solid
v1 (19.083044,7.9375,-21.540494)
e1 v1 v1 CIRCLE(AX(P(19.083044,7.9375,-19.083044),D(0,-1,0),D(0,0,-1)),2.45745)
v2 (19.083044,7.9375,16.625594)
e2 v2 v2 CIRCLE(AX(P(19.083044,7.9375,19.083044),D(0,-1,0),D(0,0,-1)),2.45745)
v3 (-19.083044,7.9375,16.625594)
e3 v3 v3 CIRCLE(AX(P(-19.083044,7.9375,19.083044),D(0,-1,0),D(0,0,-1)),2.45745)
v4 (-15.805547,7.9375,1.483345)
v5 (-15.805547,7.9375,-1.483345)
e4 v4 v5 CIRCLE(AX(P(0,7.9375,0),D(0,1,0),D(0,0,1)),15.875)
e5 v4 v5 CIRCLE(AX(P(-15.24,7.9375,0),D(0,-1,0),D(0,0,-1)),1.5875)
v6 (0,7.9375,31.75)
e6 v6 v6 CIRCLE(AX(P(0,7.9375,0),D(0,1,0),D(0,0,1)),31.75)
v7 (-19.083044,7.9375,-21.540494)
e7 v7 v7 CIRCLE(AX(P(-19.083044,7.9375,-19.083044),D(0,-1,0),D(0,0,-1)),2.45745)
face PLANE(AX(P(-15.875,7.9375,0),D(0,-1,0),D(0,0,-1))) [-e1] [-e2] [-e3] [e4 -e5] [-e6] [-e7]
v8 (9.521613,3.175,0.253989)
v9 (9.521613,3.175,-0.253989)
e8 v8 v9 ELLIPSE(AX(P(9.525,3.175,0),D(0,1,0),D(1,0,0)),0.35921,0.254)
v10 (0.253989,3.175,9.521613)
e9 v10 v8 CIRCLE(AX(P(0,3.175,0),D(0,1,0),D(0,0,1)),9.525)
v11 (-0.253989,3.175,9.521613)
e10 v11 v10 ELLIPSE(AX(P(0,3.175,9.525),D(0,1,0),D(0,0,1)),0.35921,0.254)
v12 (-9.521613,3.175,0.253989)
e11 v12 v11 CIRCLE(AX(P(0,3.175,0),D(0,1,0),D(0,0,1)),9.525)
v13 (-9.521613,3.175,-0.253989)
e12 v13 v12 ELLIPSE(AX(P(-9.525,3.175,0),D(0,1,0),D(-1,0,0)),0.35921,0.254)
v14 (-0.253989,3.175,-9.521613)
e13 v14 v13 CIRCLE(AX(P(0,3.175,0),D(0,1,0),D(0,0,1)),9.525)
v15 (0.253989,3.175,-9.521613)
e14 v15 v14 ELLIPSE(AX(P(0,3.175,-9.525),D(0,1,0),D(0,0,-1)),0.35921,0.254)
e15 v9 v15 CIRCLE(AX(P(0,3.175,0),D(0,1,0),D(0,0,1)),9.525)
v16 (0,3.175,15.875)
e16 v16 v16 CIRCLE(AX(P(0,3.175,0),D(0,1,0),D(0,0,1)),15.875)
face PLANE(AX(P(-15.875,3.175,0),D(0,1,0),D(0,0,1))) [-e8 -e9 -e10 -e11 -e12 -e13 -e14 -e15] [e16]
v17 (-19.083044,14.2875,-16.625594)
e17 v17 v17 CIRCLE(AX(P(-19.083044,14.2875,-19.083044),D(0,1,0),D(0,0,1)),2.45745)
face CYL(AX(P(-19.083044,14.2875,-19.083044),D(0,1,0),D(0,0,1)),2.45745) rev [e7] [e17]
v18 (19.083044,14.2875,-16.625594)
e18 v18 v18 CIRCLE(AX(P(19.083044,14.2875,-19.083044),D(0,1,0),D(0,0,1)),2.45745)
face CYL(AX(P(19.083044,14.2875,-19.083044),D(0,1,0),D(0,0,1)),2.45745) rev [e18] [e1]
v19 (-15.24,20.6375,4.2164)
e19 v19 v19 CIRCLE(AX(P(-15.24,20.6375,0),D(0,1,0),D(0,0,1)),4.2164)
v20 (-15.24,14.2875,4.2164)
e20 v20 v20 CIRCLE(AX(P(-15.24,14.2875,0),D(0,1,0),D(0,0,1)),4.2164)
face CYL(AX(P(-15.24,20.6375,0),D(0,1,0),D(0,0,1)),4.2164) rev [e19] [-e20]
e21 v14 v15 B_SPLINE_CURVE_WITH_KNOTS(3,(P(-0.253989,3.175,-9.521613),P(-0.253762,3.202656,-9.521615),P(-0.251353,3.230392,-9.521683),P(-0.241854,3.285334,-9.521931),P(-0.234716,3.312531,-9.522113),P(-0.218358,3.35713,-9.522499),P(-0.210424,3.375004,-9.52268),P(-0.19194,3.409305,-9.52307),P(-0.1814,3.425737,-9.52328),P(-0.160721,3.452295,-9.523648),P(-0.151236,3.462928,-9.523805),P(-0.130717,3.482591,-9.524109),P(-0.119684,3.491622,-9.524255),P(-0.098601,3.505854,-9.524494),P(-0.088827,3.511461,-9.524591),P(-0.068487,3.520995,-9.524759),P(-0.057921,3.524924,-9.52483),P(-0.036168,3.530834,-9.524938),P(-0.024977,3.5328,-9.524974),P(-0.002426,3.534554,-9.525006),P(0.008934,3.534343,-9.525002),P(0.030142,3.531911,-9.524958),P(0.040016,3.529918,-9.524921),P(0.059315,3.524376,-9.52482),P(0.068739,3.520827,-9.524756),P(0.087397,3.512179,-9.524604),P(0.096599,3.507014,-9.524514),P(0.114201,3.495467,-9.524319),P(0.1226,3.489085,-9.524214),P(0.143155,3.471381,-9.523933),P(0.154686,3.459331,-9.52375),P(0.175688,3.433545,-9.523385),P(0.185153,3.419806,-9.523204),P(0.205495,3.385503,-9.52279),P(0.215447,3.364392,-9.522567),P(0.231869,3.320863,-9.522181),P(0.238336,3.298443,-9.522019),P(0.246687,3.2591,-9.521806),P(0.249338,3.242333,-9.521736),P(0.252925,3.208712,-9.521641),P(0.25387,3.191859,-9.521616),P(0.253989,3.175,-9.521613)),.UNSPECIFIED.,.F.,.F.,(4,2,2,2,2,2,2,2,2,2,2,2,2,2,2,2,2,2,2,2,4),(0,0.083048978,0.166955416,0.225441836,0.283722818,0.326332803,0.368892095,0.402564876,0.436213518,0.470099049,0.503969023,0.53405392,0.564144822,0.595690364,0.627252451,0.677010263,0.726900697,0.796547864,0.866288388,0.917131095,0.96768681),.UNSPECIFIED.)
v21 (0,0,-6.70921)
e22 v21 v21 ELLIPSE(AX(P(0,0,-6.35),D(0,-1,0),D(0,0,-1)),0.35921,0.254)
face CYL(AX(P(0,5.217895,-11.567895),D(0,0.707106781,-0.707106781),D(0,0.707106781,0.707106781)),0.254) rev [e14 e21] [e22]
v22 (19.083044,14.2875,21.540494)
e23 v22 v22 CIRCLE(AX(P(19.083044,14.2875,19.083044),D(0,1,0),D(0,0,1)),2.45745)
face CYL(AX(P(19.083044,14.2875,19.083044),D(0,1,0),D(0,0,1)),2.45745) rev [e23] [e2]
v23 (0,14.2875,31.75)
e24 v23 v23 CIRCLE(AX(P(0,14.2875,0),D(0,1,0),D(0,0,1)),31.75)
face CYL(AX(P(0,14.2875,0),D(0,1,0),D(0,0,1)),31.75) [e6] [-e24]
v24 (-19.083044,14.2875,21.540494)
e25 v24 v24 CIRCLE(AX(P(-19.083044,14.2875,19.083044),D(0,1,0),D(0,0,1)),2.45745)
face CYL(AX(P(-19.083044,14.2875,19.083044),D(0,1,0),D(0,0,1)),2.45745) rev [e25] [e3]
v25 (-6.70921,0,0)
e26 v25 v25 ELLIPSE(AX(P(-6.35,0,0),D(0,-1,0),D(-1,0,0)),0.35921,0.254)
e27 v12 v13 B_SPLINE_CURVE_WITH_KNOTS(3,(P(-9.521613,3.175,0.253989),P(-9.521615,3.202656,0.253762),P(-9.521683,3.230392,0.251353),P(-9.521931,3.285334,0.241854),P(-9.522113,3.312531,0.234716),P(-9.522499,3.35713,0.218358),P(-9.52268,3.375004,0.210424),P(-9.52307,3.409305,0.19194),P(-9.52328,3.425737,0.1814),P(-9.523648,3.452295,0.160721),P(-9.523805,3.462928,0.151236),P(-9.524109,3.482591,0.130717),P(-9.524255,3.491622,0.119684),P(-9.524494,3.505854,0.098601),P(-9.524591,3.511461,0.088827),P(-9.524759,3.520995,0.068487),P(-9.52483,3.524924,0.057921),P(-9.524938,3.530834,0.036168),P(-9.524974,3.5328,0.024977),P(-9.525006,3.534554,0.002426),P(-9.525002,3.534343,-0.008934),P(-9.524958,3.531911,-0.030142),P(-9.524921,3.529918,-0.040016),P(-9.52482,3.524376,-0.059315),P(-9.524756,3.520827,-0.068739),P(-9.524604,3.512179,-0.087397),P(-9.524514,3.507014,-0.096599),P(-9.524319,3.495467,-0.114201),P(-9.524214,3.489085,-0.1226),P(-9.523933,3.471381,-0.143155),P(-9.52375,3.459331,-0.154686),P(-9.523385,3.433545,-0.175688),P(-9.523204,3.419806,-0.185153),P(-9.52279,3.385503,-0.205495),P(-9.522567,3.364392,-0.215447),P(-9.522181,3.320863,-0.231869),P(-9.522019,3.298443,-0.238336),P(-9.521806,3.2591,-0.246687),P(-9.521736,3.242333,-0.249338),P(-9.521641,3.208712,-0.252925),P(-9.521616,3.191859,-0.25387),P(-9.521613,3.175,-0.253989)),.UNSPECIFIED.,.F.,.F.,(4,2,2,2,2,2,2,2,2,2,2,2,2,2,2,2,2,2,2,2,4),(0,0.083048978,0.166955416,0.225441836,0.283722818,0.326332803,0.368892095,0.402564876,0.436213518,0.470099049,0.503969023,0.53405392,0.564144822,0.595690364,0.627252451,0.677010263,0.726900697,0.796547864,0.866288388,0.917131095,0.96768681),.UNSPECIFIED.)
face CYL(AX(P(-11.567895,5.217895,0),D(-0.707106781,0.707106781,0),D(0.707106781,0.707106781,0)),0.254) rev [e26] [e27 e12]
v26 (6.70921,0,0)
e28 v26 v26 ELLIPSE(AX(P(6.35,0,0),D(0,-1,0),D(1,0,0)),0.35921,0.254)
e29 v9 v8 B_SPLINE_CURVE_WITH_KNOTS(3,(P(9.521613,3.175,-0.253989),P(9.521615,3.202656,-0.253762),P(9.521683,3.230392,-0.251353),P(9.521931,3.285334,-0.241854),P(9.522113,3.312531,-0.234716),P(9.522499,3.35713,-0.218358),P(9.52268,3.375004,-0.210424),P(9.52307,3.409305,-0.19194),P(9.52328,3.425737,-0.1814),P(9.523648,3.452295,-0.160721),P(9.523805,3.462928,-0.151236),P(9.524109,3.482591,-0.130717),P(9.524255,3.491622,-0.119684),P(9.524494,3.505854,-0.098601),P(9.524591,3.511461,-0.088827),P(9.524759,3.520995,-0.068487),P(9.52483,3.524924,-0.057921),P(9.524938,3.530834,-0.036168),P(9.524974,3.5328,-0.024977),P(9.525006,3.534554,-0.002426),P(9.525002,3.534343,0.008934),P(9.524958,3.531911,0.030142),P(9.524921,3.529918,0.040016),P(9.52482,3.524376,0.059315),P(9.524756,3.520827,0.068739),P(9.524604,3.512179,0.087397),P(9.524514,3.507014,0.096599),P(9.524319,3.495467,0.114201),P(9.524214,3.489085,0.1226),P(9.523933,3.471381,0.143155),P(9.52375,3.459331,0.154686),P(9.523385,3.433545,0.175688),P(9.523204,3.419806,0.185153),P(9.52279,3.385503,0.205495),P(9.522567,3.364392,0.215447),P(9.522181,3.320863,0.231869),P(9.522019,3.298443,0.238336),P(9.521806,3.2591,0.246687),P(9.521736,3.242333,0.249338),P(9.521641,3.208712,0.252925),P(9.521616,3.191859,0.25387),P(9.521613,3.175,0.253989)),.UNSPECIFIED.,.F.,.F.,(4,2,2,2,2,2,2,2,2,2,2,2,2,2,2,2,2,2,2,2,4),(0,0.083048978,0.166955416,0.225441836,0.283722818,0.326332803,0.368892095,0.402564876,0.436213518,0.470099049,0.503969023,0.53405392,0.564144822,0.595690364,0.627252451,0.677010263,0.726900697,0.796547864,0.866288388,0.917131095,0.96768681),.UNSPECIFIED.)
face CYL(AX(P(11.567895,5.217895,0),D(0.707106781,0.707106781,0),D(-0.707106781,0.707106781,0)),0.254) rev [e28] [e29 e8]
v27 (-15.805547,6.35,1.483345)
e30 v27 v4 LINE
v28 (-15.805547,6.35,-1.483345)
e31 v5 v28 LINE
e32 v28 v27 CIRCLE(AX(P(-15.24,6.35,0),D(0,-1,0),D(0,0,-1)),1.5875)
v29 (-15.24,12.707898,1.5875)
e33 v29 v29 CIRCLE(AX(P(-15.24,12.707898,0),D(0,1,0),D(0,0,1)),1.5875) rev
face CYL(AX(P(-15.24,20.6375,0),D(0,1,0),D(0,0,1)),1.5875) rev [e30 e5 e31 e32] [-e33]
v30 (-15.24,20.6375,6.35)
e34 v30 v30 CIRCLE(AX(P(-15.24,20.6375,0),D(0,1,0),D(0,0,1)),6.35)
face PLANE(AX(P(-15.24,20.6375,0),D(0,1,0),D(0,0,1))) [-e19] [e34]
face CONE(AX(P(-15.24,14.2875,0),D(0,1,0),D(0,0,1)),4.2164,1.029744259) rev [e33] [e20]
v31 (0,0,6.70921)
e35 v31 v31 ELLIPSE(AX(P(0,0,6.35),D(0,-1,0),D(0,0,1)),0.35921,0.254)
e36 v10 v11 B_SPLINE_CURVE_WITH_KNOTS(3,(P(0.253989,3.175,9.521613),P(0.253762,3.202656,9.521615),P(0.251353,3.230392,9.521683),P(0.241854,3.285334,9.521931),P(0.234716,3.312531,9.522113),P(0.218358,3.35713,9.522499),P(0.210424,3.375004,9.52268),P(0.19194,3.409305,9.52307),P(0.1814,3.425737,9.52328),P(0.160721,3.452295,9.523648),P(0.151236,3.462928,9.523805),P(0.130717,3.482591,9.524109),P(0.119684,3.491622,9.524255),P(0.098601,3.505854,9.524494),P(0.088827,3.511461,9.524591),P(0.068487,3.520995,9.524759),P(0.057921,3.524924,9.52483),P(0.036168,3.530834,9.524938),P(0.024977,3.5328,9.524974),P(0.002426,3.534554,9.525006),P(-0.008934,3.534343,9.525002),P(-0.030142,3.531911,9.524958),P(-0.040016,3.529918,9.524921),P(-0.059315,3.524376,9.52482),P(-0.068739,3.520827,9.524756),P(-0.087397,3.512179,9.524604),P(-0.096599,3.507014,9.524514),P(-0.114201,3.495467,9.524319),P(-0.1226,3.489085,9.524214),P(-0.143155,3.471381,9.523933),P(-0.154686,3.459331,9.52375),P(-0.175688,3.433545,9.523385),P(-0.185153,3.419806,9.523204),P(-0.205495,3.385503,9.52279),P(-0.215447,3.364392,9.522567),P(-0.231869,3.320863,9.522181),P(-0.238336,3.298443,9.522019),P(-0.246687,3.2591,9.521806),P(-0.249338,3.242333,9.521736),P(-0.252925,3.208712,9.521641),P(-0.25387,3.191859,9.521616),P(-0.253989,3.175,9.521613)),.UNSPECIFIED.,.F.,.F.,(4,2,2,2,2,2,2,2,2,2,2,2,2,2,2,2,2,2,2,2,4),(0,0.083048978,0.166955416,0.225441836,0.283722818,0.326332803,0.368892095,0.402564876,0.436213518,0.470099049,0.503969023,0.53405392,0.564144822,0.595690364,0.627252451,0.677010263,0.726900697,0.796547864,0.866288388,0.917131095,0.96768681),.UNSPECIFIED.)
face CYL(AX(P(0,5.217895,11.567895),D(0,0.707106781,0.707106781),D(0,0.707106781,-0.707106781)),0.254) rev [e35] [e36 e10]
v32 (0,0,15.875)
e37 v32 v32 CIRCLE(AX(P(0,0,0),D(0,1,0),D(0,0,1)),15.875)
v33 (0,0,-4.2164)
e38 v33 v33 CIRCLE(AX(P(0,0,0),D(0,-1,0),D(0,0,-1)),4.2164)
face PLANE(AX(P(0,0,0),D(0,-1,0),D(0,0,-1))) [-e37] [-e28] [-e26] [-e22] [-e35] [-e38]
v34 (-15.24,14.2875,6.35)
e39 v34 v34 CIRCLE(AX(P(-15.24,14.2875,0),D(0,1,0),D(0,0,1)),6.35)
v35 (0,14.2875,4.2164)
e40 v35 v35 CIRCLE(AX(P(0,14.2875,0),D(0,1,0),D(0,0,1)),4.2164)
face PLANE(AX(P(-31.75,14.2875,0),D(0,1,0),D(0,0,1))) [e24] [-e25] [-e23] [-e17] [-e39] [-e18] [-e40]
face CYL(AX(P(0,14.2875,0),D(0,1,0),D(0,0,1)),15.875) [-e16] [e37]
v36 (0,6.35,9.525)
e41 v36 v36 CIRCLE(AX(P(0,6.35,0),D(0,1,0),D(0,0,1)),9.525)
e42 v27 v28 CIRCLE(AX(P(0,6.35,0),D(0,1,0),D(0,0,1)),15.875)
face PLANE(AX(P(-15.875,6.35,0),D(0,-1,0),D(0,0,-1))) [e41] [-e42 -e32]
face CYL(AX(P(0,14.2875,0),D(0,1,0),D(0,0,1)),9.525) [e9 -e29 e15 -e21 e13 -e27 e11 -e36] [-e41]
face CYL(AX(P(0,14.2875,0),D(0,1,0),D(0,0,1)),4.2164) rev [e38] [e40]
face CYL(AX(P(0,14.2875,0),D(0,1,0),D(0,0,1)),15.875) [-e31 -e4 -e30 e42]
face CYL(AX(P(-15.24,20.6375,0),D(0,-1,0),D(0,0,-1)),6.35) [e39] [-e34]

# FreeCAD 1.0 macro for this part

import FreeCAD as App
import Part
import Sketcher
from FreeCAD import Vector
Q = App.Units.Quantity

doc = App.newDocument("Part")
body = doc.addObject("PartDesign::Body", "Body")

sketch1 = doc.addObject("Sketcher::SketchObject", "Sketch")
body.addObject(sketch1)
sketch1.AttachmentSupport = (doc.XY_Plane, [""])
sketch1.MapMode = "FlatFace"
sketch1.addGeometry([
    Part.LineSegment(Vector(-15.9, 0, 0), Vector(0, 0, 0)),
    Part.LineSegment(Vector(0, 0, 0), Vector(0, 14.3, 0)),
    Part.LineSegment(Vector(0, 14.3, 0), Vector(-31.8, 14.3, 0)),
    Part.LineSegment(Vector(-31.8, 14.3, 0), Vector(-31.8, 7.9, 0)),
    Part.LineSegment(Vector(-31.8, 7.9, 0), Vector(-15.9, 7.9, 0)),
    Part.LineSegment(Vector(-15.9, 7.9, 0), Vector(-15.9, 6.3, 0)),
    Part.LineSegment(Vector(-15.9, 6.3, 0), Vector(-9.5, 6.3, 0)),
    Part.LineSegment(Vector(-9.5, 6.3, 0), Vector(-9.5, 3.2, 0)),
    Part.LineSegment(Vector(-9.5, 3.2, 0), Vector(-15.9, 3.2, 0)),
    Part.LineSegment(Vector(-15.9, 3.2, 0), Vector(-15.9, 0, 0)),
], False)
sketch1.addConstraint([
    Sketcher.Constraint("Coincident", 0, 2, 1, 1),
    Sketcher.Constraint("Coincident", 1, 2, 2, 1),
    Sketcher.Constraint("Coincident", 2, 2, 3, 1),
    Sketcher.Constraint("Coincident", 3, 2, 4, 1),
    Sketcher.Constraint("Coincident", 4, 2, 5, 1),
    Sketcher.Constraint("Coincident", 5, 2, 6, 1),
    Sketcher.Constraint("Coincident", 6, 2, 7, 1),
    Sketcher.Constraint("Coincident", 7, 2, 8, 1),
    Sketcher.Constraint("Coincident", 8, 2, 9, 1),
    Sketcher.Constraint("Coincident", 9, 2, 0, 1),
    Sketcher.Constraint("Horizontal", 0),
    Sketcher.Constraint("Vertical", 1),
    Sketcher.Constraint("Horizontal", 2),
    Sketcher.Constraint("Vertical", 3),
    Sketcher.Constraint("Horizontal", 4),
    Sketcher.Constraint("Vertical", 5),
    Sketcher.Constraint("Horizontal", 6),
    Sketcher.Constraint("Vertical", 7),
    Sketcher.Constraint("Horizontal", 8),
    Sketcher.Constraint("Vertical", 9),
    Sketcher.Constraint("Coincident", 0, 2, -1, 1),
    Sketcher.Constraint("Vertical", 5, 2, 8, 2),
    Sketcher.Constraint("Equal", 0, 4),
    Sketcher.Constraint("Equal", 8, 3),
    Sketcher.Constraint("Equal", 7, 9),
    Sketcher.Constraint("DistanceX", 2, 2, 2, 1, Q("1.25 in")),
    Sketcher.Constraint("DistanceX", 6, 1, 6, 2, Q("0.25 in")),
    Sketcher.Constraint("DistanceY", 1, 1, 1, 2, Q("0.5625 in")),
    Sketcher.Constraint("DistanceY", 5, 2, 5, 1, Q("0.0625 in")),
])
revolution = doc.addObject("PartDesign::Revolution", "Revolution")
body.addObject(revolution)
revolution.Profile = sketch1
revolution.ReferenceAxis = (sketch1, ["V_Axis"])
revolution.Angle = 360

sketch2 = doc.addObject("Sketcher::SketchObject", "Sketch001")
body.addObject(sketch2)
sketch2.AttachmentSupport = (doc.XZ_Plane, [""])
sketch2.MapMode = "FlatFace"
sketch2.AttachmentOffset = App.Placement(Vector(0, 0, -0.5625 * 25.4), App.Rotation())
sketch2.addGeometry(Part.Circle(Vector(0, 0, 0), Vector(0, 0, 1), 4.2), False)
sketch2.addConstraint([
    Sketcher.Constraint("Coincident", 0, 3, -1, 1),
    Sketcher.Constraint("Diameter", 0, Q("0.332 in")),
])
doc.recompute()
hole = doc.addObject("PartDesign::Hole", "Hole")
body.addObject(hole)
hole.Profile = sketch2
hole.ThreadType = "None"
hole.Diameter = Q("0.332 in")
hole.DepthType = "Dimension"
hole.Depth = Q("1 in")
hole.DrillPoint = "Angled"
hole.DrillPointAngle = 118
hole.Reversed = True

sketch3 = doc.addObject("Sketcher::SketchObject", "Sketch002")
body.addObject(sketch3)
sketch3.AttachmentSupport = (doc.XY_Plane, [""])
sketch3.MapMode = "FlatFace"
sketch3.addGeometry([
    Part.LineSegment(Vector(11.39, 5.4, 0), Vector(11.57, 5.22, 0)),
    Part.LineSegment(Vector(11.57, 5.22, 0), Vector(4.9, -1.45, 0)),
    Part.LineSegment(Vector(4.9, -1.45, 0), Vector(4.72, -1.27, 0)),
    Part.LineSegment(Vector(4.72, -1.27, 0), Vector(11.39, 5.4, 0)),
], False)
sketch3.addGeometry(Part.LineSegment(Vector(11.57, 5.22, 0), Vector(4.9, -1.45, 0)), True)
sketch3.addConstraint([
    Sketcher.Constraint("Coincident", 0, 2, 1, 1),
    Sketcher.Constraint("Coincident", 1, 2, 2, 1),
    Sketcher.Constraint("Coincident", 2, 2, 3, 1),
    Sketcher.Constraint("Coincident", 3, 2, 0, 1),
    Sketcher.Constraint("Coincident", 4, 1, 0, 2),
    Sketcher.Constraint("Coincident", 4, 2, 1, 2),
    Sketcher.Constraint("Perpendicular", 0, 1),
    Sketcher.Constraint("Perpendicular", 1, 2),
    Sketcher.Constraint("Perpendicular", 2, 3),
    Sketcher.Constraint("Angle", 0, Q("-45 deg")),
    Sketcher.Constraint("Distance", 0, Q("0.01 in")),
    Sketcher.Constraint("DistanceY", 2, 2, -1, 1, Q("0.05 in")),
    Sketcher.Constraint("DistanceY", -1, 1, 3, 2, Q("0.2125 in")),
    Sketcher.Constraint("DistanceX", -1, 1, 2, 2, Q("4.72079 mm")),
])
groove = doc.addObject("PartDesign::Groove", "Groove")
body.addObject(groove)
groove.Profile = sketch3
groove.ReferenceAxis = (sketch3, ["Axis0"])
groove.Angle = 360
doc.recompute()

polarpattern = doc.addObject("PartDesign::PolarPattern", "PolarPattern")
body.addObject(polarpattern)
polarpattern.Originals = [groove]
polarpattern.Axis = (doc.Y_Axis, [""])
polarpattern.Angle = 360
polarpattern.Occurrences = 4
body.Tip = polarpattern

sketch4 = doc.addObject("Sketcher::SketchObject", "Sketch003")
body.addObject(sketch4)
sketch4.AttachmentSupport = (doc.XZ_Plane, [""])
sketch4.MapMode = "FlatFace"
sketch4.AttachmentOffset = App.Placement(Vector(0, 0, -0.5625 * 25.4), App.Rotation())
sketch4.addGeometry(Part.Circle(Vector(-15, 0, 0), Vector(0, 0, 1), 6), False)
sketch4.addConstraint([
    Sketcher.Constraint("PointOnObject", 0, 3, -1),
    Sketcher.Constraint("Diameter", 0, Q("0.5 in")),
    Sketcher.Constraint("DistanceX", 0, 3, -1, 1, Q("0.6 in")),
])
pad1 = doc.addObject("PartDesign::Pad", "Pad")
body.addObject(pad1)
pad1.Profile = sketch4
pad1.Length = Q("0.25 in")
pad1.Reversed = True

sketch5 = doc.addObject("Sketcher::SketchObject", "Sketch004")
body.addObject(sketch5)
sketch5.AttachmentSupport = (doc.XZ_Plane, [""])
sketch5.MapMode = "FlatFace"
sketch5.AttachmentOffset = App.Placement(Vector(0, 0, -0.8125 * 25.4), App.Rotation())
sketch5.addGeometry(Part.Circle(Vector(-15.2, 0, 0), Vector(0, 0, 1), 4.2), False)
sketch5.addConstraint([
    Sketcher.Constraint("PointOnObject", 0, 3, -1),
    Sketcher.Constraint("Diameter", 0, Q("0.332 in")),
    Sketcher.Constraint("DistanceX", 0, 3, -1, 1, Q("0.6 in")),
])
doc.recompute()
hole2 = doc.addObject("PartDesign::Hole", "Hole001")
body.addObject(hole2)
hole2.Profile = sketch5
hole2.ThreadType = "None"
hole2.Diameter = Q("0.332 in")
hole2.DepthType = "Dimension"
hole2.Depth = Q("0.25 in")
hole2.DrillPoint = "Angled"
hole2.DrillPointAngle = 118
hole2.Reversed = True

sketch6 = doc.addObject("Sketcher::SketchObject", "Sketch005")
body.addObject(sketch6)
sketch6.AttachmentSupport = (doc.XZ_Plane, [""])
sketch6.MapMode = "FlatFace"
sketch6.AttachmentOffset = App.Placement(Vector(0, 0, -0.8125 * 25.4), App.Rotation())
sketch6.addGeometry(Part.Circle(Vector(-15.2, 0, 0), Vector(0, 0, 1), 1.6), False)
sketch6.addConstraint([
    Sketcher.Constraint("PointOnObject", 0, 3, -1),
    Sketcher.Constraint("Diameter", 0, Q("0.125 in")),
    Sketcher.Constraint("DistanceX", 0, 3, -1, 1, Q("0.6 in")),
])
doc.recompute()
hole3 = doc.addObject("PartDesign::Hole", "Hole002")
body.addObject(hole3)
hole3.Profile = sketch6
hole3.ThreadType = "None"
hole3.Diameter = Q("0.125 in")
hole3.DepthType = "Dimension"
hole3.Depth = Q("0.5625 in")
hole3.DrillPoint = "Flat"
hole3.Reversed = True

sketch7 = doc.addObject("Sketcher::SketchObject", "Sketch006")
body.addObject(sketch7)
sketch7.AttachmentSupport = (doc.XZ_Plane, [""])
sketch7.MapMode = "FlatFace"
sketch7.AttachmentOffset = App.Placement(Vector(0, 0, -0.5625 * 25.4), App.Rotation())
sketch7.addGeometry(Part.Circle(Vector(19.1, -19.1, 0), Vector(0, 0, 1), 2.5), False)
sketch7.addConstraint([
    Sketcher.Constraint("Diameter", 0, Q("0.1935 in")),
    Sketcher.Constraint("DistanceX", -1, 1, 0, 3, Q("19.083044 mm")),
    Sketcher.Constraint("DistanceY", 0, 3, -1, 1, Q("19.083044 mm")),
])
doc.recompute()
hole4 = doc.addObject("PartDesign::Hole", "Hole003")
body.addObject(hole4)
hole4.Profile = sketch7
hole4.ThreadType = "None"
hole4.Diameter = Q("0.1935 in")
hole4.DepthType = "Dimension"
hole4.Depth = Q("0.25 in")
hole4.DrillPoint = "Flat"
hole4.Reversed = True
doc.recompute()

polarpattern2 = doc.addObject("PartDesign::PolarPattern", "PolarPattern001")
body.addObject(polarpattern2)
polarpattern2.Originals = [hole4]
polarpattern2.Axis = (doc.Y_Axis, [""])
polarpattern2.Angle = 360
polarpattern2.Occurrences = 4
body.Tip = polarpattern2

doc.recompute()
